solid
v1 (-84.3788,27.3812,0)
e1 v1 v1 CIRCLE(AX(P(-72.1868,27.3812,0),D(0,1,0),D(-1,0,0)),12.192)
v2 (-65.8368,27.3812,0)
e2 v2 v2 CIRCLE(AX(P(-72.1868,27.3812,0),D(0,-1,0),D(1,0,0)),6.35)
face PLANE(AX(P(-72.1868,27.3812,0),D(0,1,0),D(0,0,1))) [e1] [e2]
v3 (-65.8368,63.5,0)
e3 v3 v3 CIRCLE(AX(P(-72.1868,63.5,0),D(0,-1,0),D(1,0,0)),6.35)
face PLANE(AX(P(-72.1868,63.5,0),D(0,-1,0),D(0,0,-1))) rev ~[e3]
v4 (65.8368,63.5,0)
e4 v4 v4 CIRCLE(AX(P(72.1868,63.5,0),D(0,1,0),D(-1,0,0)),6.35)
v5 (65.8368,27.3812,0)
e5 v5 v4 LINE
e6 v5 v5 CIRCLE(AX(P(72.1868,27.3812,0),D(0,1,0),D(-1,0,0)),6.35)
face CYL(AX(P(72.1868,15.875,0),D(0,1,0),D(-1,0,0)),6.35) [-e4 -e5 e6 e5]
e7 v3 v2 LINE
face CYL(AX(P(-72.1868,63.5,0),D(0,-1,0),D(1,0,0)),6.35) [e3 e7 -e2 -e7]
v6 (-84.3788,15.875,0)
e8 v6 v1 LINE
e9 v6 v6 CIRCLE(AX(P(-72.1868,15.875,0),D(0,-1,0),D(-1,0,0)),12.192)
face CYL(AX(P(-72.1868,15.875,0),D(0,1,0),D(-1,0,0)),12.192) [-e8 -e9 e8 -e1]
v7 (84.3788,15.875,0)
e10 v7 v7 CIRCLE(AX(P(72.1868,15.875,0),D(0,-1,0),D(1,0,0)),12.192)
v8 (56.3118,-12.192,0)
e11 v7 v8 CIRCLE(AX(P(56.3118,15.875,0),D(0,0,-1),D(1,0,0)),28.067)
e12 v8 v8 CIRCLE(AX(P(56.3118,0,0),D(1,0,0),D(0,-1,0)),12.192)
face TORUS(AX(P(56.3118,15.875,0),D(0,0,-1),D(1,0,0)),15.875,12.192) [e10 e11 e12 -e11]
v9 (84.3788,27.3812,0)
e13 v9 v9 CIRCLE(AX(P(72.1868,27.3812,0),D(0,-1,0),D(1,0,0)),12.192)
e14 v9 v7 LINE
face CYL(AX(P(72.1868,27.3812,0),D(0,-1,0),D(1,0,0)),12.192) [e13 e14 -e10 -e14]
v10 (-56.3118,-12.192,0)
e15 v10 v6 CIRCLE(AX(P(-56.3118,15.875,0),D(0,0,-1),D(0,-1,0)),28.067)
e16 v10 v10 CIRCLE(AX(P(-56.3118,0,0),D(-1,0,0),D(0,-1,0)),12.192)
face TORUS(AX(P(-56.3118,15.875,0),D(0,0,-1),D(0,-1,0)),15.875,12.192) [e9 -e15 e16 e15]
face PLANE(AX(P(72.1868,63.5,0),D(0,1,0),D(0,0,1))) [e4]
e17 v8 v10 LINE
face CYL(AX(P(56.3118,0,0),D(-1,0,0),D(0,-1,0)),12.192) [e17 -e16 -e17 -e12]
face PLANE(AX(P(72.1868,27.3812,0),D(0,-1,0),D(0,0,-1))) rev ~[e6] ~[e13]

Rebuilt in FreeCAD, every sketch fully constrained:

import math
import FreeCAD as App
import Part
import Sketcher
from FreeCAD import Vector
Q = App.Units.Quantity

doc = App.newDocument("Part")
body = doc.addObject("PartDesign::Body", "Body")

sketch1 = body.newObject("Sketcher::SketchObject", "Sketch")
sketch1.AttachmentSupport = (doc.getObject("XZ_Plane"), [""])
sketch1.MapMode = "FlatFace"
sketch1.AttachmentOffset = App.Placement(Vector(0, 0, -1.078 * 25.4), App.Rotation())
sketch1.addGeometry(Part.Circle(Vector(72, 0, 0), Vector(0, 0, 1), 12), False)
sketch1.addConstraint(Sketcher.Constraint("PointOnObject", 0, 3, -1))
sketch1.addConstraint(Sketcher.Constraint("Diameter", 0, Q("0.96 in")))
sketch1.addConstraint(Sketcher.Constraint("DistanceX", -1, 1, 0, 3, Q("2.842 in")))

sketch2 = body.newObject("Sketcher::SketchObject", "Sketch001")
sketch2.AttachmentSupport = (doc.getObject("XY_Plane"), [""])
sketch2.MapMode = "FlatFace"
sketch2.addGeometry(Part.LineSegment(Vector(72, 27, 0), Vector(72, 16, 0)), False)
sketch2.addGeometry(Part.ArcOfCircle(Part.Circle(Vector(56, 16, 0), Vector(0, 0, 1), 16), math.radians(-90), math.radians(0)), False)
sketch2.addGeometry(Part.LineSegment(Vector(56, 0, 0), Vector(-56, 0, 0)), False)
sketch2.addGeometry(Part.ArcOfCircle(Part.Circle(Vector(-56, 16, 0), Vector(0, 0, 1), 16), math.radians(180), math.radians(270)), False)
sketch2.addGeometry(Part.LineSegment(Vector(-72, 16, 0), Vector(-72, 27, 0)), False)
sketch2.addConstraint(Sketcher.Constraint("Tangent", 0, 2, 1, 2))
sketch2.addConstraint(Sketcher.Constraint("Tangent", 1, 1, 2, 1))
sketch2.addConstraint(Sketcher.Constraint("Tangent", 2, 2, 3, 2))
sketch2.addConstraint(Sketcher.Constraint("Tangent", 3, 1, 4, 1))
sketch2.addConstraint(Sketcher.Constraint("Vertical", 0))
sketch2.addConstraint(Sketcher.Constraint("Horizontal", 2))
sketch2.addConstraint(Sketcher.Constraint("Vertical", 4))
sketch2.addConstraint(Sketcher.Constraint("Equal", 1, 3))
sketch2.addConstraint(Sketcher.Constraint("Symmetric", 1, 1, 2, 2, -1, 1))
sketch2.addConstraint(Sketcher.Constraint("Horizontal", 0, 1, 4, 2))
sketch2.addConstraint(Sketcher.Constraint("Radius", 1, Q("0.625 in")))
sketch2.addConstraint(Sketcher.Constraint("DistanceX", 2, 2, 2, 1, Q("4.434 in")))
sketch2.addConstraint(Sketcher.Constraint("DistanceY", 0, 2, 0, 1, Q("0.453 in")))
doc.recompute()

additivepipe = body.newObject("PartDesign::AdditivePipe", "AdditivePipe")
additivepipe.Profile = sketch1
additivepipe.Spine = (sketch2, ["Edge1", "Edge2", "Edge3", "Edge4", "Edge5"])

sketch3 = body.newObject("Sketcher::SketchObject", "Sketch002")
sketch3.AttachmentSupport = (doc.getObject("XZ_Plane"), [""])
sketch3.MapMode = "FlatFace"
sketch3.AttachmentOffset = App.Placement(Vector(0, 0, -1.078 * 25.4), App.Rotation())
sketch3.addGeometry(Part.Circle(Vector(-72, 0, 0), Vector(0, 0, 1), 6), False)
sketch3.addConstraint(Sketcher.Constraint("PointOnObject", 0, 3, -1))
sketch3.addConstraint(Sketcher.Constraint("Diameter", 0, Q("0.5 in")))
sketch3.addConstraint(Sketcher.Constraint("DistanceX", 0, 3, -1, 1, Q("2.842 in")))

sketch4 = body.newObject("Sketcher::SketchObject", "Sketch003")
sketch4.AttachmentSupport = (doc.getObject("XY_Plane"), [""])
sketch4.MapMode = "FlatFace"
sketch4.addGeometry(Part.LineSegment(Vector(-72, 64, 0), Vector(-72, 16, 0)), False)
sketch4.addGeometry(Part.ArcOfCircle(Part.Circle(Vector(-56, 16, 0), Vector(0, 0, 1), 16), math.radians(180), math.radians(270)), False)
sketch4.addGeometry(Part.LineSegment(Vector(-56, 0, 0), Vector(56, 0, 0)), False)
sketch4.addGeometry(Part.ArcOfCircle(Part.Circle(Vector(56, 16, 0), Vector(0, 0, 1), 16), math.radians(-90), math.radians(0)), False)
sketch4.addGeometry(Part.LineSegment(Vector(72, 16, 0), Vector(72, 64, 0)), False)
sketch4.addConstraint(Sketcher.Constraint("Tangent", 0, 2, 1, 1))
sketch4.addConstraint(Sketcher.Constraint("Tangent", 1, 2, 2, 1))
sketch4.addConstraint(Sketcher.Constraint("Tangent", 2, 2, 3, 1))
sketch4.addConstraint(Sketcher.Constraint("Tangent", 3, 2, 4, 1))
sketch4.addConstraint(Sketcher.Constraint("Vertical", 0))
sketch4.addConstraint(Sketcher.Constraint("Horizontal", 2))
sketch4.addConstraint(Sketcher.Constraint("Vertical", 4))
sketch4.addConstraint(Sketcher.Constraint("Equal", 1, 3))
sketch4.addConstraint(Sketcher.Constraint("Symmetric", 1, 2, 2, 2, -1, 1))
sketch4.addConstraint(Sketcher.Constraint("Horizontal", 0, 1, 4, 2))
sketch4.addConstraint(Sketcher.Constraint("Radius", 1, Q("0.625 in")))
sketch4.addConstraint(Sketcher.Constraint("DistanceY", -1, 1, 0, 1, Q("2.5 in")))
sketch4.addConstraint(Sketcher.Constraint("DistanceX", 2, 1, 2, 2, Q("4.434 in")))
doc.recompute()

additivepipe2 = body.newObject("PartDesign::AdditivePipe", "AdditivePipe001")
additivepipe2.Profile = sketch3
additivepipe2.Spine = (sketch4, ["Edge1", "Edge2", "Edge3", "Edge4", "Edge5"])

doc.recompute()
